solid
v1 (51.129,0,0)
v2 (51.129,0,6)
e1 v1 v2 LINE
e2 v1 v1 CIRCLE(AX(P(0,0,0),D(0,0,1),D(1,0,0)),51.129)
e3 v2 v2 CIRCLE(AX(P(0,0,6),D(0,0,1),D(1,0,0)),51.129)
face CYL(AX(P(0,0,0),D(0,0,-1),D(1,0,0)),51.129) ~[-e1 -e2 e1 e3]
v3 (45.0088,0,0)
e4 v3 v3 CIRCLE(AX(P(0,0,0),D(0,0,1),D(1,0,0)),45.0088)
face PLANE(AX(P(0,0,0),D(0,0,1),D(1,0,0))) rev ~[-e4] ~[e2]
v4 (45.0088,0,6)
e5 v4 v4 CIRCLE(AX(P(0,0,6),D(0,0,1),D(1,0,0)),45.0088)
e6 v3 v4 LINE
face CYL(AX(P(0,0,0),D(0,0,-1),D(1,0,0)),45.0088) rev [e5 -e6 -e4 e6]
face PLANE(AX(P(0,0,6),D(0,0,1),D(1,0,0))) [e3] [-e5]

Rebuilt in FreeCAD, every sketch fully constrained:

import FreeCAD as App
import Part
import Sketcher

V = App.Vector

doc = App.newDocument("Part")
params = doc.addObject("Spreadsheet::Sheet", "Params")
for row, (alias, value) in enumerate([
    ("pad1_length", "6 mm"),
], start=1):
    params.set(f"A{row}", alias)
    params.set(f"B{row}", "=" + value)
    params.setAlias(f"B{row}", alias)

body = doc.addObject("PartDesign::Body", "Body")

# Sketch on XY plane
sketch1 = doc.addObject("Sketcher::SketchObject", "Sketch")
body.addObject(sketch1)
sketch1.AttachmentSupport = (doc.XY_Plane, [""])
sketch1.MapMode = "FlatFace"
sketch1.addGeometry([
    Part.Circle(V(0, 0, 0), V(0, 0, 1), 51.129),
    Part.Circle(V(0, 0, 0), V(0, 0, 1), 45.0088),
], False)
sketch1.addConstraint([
    Sketcher.Constraint("Coincident", 0, 3, -1, 1),
    Sketcher.Constraint("Coincident", 1, 3, -1, 1),
    Sketcher.Constraint("Diameter", 0, 102.258),
    Sketcher.Constraint("Diameter", 1, 90.0176),
])
pad1 = doc.addObject("PartDesign::Pad", "Pad")
body.addObject(pad1)
pad1.Profile = sketch1
pad1.setExpression("Length", "Params.pad1_length")

doc.recompute()
